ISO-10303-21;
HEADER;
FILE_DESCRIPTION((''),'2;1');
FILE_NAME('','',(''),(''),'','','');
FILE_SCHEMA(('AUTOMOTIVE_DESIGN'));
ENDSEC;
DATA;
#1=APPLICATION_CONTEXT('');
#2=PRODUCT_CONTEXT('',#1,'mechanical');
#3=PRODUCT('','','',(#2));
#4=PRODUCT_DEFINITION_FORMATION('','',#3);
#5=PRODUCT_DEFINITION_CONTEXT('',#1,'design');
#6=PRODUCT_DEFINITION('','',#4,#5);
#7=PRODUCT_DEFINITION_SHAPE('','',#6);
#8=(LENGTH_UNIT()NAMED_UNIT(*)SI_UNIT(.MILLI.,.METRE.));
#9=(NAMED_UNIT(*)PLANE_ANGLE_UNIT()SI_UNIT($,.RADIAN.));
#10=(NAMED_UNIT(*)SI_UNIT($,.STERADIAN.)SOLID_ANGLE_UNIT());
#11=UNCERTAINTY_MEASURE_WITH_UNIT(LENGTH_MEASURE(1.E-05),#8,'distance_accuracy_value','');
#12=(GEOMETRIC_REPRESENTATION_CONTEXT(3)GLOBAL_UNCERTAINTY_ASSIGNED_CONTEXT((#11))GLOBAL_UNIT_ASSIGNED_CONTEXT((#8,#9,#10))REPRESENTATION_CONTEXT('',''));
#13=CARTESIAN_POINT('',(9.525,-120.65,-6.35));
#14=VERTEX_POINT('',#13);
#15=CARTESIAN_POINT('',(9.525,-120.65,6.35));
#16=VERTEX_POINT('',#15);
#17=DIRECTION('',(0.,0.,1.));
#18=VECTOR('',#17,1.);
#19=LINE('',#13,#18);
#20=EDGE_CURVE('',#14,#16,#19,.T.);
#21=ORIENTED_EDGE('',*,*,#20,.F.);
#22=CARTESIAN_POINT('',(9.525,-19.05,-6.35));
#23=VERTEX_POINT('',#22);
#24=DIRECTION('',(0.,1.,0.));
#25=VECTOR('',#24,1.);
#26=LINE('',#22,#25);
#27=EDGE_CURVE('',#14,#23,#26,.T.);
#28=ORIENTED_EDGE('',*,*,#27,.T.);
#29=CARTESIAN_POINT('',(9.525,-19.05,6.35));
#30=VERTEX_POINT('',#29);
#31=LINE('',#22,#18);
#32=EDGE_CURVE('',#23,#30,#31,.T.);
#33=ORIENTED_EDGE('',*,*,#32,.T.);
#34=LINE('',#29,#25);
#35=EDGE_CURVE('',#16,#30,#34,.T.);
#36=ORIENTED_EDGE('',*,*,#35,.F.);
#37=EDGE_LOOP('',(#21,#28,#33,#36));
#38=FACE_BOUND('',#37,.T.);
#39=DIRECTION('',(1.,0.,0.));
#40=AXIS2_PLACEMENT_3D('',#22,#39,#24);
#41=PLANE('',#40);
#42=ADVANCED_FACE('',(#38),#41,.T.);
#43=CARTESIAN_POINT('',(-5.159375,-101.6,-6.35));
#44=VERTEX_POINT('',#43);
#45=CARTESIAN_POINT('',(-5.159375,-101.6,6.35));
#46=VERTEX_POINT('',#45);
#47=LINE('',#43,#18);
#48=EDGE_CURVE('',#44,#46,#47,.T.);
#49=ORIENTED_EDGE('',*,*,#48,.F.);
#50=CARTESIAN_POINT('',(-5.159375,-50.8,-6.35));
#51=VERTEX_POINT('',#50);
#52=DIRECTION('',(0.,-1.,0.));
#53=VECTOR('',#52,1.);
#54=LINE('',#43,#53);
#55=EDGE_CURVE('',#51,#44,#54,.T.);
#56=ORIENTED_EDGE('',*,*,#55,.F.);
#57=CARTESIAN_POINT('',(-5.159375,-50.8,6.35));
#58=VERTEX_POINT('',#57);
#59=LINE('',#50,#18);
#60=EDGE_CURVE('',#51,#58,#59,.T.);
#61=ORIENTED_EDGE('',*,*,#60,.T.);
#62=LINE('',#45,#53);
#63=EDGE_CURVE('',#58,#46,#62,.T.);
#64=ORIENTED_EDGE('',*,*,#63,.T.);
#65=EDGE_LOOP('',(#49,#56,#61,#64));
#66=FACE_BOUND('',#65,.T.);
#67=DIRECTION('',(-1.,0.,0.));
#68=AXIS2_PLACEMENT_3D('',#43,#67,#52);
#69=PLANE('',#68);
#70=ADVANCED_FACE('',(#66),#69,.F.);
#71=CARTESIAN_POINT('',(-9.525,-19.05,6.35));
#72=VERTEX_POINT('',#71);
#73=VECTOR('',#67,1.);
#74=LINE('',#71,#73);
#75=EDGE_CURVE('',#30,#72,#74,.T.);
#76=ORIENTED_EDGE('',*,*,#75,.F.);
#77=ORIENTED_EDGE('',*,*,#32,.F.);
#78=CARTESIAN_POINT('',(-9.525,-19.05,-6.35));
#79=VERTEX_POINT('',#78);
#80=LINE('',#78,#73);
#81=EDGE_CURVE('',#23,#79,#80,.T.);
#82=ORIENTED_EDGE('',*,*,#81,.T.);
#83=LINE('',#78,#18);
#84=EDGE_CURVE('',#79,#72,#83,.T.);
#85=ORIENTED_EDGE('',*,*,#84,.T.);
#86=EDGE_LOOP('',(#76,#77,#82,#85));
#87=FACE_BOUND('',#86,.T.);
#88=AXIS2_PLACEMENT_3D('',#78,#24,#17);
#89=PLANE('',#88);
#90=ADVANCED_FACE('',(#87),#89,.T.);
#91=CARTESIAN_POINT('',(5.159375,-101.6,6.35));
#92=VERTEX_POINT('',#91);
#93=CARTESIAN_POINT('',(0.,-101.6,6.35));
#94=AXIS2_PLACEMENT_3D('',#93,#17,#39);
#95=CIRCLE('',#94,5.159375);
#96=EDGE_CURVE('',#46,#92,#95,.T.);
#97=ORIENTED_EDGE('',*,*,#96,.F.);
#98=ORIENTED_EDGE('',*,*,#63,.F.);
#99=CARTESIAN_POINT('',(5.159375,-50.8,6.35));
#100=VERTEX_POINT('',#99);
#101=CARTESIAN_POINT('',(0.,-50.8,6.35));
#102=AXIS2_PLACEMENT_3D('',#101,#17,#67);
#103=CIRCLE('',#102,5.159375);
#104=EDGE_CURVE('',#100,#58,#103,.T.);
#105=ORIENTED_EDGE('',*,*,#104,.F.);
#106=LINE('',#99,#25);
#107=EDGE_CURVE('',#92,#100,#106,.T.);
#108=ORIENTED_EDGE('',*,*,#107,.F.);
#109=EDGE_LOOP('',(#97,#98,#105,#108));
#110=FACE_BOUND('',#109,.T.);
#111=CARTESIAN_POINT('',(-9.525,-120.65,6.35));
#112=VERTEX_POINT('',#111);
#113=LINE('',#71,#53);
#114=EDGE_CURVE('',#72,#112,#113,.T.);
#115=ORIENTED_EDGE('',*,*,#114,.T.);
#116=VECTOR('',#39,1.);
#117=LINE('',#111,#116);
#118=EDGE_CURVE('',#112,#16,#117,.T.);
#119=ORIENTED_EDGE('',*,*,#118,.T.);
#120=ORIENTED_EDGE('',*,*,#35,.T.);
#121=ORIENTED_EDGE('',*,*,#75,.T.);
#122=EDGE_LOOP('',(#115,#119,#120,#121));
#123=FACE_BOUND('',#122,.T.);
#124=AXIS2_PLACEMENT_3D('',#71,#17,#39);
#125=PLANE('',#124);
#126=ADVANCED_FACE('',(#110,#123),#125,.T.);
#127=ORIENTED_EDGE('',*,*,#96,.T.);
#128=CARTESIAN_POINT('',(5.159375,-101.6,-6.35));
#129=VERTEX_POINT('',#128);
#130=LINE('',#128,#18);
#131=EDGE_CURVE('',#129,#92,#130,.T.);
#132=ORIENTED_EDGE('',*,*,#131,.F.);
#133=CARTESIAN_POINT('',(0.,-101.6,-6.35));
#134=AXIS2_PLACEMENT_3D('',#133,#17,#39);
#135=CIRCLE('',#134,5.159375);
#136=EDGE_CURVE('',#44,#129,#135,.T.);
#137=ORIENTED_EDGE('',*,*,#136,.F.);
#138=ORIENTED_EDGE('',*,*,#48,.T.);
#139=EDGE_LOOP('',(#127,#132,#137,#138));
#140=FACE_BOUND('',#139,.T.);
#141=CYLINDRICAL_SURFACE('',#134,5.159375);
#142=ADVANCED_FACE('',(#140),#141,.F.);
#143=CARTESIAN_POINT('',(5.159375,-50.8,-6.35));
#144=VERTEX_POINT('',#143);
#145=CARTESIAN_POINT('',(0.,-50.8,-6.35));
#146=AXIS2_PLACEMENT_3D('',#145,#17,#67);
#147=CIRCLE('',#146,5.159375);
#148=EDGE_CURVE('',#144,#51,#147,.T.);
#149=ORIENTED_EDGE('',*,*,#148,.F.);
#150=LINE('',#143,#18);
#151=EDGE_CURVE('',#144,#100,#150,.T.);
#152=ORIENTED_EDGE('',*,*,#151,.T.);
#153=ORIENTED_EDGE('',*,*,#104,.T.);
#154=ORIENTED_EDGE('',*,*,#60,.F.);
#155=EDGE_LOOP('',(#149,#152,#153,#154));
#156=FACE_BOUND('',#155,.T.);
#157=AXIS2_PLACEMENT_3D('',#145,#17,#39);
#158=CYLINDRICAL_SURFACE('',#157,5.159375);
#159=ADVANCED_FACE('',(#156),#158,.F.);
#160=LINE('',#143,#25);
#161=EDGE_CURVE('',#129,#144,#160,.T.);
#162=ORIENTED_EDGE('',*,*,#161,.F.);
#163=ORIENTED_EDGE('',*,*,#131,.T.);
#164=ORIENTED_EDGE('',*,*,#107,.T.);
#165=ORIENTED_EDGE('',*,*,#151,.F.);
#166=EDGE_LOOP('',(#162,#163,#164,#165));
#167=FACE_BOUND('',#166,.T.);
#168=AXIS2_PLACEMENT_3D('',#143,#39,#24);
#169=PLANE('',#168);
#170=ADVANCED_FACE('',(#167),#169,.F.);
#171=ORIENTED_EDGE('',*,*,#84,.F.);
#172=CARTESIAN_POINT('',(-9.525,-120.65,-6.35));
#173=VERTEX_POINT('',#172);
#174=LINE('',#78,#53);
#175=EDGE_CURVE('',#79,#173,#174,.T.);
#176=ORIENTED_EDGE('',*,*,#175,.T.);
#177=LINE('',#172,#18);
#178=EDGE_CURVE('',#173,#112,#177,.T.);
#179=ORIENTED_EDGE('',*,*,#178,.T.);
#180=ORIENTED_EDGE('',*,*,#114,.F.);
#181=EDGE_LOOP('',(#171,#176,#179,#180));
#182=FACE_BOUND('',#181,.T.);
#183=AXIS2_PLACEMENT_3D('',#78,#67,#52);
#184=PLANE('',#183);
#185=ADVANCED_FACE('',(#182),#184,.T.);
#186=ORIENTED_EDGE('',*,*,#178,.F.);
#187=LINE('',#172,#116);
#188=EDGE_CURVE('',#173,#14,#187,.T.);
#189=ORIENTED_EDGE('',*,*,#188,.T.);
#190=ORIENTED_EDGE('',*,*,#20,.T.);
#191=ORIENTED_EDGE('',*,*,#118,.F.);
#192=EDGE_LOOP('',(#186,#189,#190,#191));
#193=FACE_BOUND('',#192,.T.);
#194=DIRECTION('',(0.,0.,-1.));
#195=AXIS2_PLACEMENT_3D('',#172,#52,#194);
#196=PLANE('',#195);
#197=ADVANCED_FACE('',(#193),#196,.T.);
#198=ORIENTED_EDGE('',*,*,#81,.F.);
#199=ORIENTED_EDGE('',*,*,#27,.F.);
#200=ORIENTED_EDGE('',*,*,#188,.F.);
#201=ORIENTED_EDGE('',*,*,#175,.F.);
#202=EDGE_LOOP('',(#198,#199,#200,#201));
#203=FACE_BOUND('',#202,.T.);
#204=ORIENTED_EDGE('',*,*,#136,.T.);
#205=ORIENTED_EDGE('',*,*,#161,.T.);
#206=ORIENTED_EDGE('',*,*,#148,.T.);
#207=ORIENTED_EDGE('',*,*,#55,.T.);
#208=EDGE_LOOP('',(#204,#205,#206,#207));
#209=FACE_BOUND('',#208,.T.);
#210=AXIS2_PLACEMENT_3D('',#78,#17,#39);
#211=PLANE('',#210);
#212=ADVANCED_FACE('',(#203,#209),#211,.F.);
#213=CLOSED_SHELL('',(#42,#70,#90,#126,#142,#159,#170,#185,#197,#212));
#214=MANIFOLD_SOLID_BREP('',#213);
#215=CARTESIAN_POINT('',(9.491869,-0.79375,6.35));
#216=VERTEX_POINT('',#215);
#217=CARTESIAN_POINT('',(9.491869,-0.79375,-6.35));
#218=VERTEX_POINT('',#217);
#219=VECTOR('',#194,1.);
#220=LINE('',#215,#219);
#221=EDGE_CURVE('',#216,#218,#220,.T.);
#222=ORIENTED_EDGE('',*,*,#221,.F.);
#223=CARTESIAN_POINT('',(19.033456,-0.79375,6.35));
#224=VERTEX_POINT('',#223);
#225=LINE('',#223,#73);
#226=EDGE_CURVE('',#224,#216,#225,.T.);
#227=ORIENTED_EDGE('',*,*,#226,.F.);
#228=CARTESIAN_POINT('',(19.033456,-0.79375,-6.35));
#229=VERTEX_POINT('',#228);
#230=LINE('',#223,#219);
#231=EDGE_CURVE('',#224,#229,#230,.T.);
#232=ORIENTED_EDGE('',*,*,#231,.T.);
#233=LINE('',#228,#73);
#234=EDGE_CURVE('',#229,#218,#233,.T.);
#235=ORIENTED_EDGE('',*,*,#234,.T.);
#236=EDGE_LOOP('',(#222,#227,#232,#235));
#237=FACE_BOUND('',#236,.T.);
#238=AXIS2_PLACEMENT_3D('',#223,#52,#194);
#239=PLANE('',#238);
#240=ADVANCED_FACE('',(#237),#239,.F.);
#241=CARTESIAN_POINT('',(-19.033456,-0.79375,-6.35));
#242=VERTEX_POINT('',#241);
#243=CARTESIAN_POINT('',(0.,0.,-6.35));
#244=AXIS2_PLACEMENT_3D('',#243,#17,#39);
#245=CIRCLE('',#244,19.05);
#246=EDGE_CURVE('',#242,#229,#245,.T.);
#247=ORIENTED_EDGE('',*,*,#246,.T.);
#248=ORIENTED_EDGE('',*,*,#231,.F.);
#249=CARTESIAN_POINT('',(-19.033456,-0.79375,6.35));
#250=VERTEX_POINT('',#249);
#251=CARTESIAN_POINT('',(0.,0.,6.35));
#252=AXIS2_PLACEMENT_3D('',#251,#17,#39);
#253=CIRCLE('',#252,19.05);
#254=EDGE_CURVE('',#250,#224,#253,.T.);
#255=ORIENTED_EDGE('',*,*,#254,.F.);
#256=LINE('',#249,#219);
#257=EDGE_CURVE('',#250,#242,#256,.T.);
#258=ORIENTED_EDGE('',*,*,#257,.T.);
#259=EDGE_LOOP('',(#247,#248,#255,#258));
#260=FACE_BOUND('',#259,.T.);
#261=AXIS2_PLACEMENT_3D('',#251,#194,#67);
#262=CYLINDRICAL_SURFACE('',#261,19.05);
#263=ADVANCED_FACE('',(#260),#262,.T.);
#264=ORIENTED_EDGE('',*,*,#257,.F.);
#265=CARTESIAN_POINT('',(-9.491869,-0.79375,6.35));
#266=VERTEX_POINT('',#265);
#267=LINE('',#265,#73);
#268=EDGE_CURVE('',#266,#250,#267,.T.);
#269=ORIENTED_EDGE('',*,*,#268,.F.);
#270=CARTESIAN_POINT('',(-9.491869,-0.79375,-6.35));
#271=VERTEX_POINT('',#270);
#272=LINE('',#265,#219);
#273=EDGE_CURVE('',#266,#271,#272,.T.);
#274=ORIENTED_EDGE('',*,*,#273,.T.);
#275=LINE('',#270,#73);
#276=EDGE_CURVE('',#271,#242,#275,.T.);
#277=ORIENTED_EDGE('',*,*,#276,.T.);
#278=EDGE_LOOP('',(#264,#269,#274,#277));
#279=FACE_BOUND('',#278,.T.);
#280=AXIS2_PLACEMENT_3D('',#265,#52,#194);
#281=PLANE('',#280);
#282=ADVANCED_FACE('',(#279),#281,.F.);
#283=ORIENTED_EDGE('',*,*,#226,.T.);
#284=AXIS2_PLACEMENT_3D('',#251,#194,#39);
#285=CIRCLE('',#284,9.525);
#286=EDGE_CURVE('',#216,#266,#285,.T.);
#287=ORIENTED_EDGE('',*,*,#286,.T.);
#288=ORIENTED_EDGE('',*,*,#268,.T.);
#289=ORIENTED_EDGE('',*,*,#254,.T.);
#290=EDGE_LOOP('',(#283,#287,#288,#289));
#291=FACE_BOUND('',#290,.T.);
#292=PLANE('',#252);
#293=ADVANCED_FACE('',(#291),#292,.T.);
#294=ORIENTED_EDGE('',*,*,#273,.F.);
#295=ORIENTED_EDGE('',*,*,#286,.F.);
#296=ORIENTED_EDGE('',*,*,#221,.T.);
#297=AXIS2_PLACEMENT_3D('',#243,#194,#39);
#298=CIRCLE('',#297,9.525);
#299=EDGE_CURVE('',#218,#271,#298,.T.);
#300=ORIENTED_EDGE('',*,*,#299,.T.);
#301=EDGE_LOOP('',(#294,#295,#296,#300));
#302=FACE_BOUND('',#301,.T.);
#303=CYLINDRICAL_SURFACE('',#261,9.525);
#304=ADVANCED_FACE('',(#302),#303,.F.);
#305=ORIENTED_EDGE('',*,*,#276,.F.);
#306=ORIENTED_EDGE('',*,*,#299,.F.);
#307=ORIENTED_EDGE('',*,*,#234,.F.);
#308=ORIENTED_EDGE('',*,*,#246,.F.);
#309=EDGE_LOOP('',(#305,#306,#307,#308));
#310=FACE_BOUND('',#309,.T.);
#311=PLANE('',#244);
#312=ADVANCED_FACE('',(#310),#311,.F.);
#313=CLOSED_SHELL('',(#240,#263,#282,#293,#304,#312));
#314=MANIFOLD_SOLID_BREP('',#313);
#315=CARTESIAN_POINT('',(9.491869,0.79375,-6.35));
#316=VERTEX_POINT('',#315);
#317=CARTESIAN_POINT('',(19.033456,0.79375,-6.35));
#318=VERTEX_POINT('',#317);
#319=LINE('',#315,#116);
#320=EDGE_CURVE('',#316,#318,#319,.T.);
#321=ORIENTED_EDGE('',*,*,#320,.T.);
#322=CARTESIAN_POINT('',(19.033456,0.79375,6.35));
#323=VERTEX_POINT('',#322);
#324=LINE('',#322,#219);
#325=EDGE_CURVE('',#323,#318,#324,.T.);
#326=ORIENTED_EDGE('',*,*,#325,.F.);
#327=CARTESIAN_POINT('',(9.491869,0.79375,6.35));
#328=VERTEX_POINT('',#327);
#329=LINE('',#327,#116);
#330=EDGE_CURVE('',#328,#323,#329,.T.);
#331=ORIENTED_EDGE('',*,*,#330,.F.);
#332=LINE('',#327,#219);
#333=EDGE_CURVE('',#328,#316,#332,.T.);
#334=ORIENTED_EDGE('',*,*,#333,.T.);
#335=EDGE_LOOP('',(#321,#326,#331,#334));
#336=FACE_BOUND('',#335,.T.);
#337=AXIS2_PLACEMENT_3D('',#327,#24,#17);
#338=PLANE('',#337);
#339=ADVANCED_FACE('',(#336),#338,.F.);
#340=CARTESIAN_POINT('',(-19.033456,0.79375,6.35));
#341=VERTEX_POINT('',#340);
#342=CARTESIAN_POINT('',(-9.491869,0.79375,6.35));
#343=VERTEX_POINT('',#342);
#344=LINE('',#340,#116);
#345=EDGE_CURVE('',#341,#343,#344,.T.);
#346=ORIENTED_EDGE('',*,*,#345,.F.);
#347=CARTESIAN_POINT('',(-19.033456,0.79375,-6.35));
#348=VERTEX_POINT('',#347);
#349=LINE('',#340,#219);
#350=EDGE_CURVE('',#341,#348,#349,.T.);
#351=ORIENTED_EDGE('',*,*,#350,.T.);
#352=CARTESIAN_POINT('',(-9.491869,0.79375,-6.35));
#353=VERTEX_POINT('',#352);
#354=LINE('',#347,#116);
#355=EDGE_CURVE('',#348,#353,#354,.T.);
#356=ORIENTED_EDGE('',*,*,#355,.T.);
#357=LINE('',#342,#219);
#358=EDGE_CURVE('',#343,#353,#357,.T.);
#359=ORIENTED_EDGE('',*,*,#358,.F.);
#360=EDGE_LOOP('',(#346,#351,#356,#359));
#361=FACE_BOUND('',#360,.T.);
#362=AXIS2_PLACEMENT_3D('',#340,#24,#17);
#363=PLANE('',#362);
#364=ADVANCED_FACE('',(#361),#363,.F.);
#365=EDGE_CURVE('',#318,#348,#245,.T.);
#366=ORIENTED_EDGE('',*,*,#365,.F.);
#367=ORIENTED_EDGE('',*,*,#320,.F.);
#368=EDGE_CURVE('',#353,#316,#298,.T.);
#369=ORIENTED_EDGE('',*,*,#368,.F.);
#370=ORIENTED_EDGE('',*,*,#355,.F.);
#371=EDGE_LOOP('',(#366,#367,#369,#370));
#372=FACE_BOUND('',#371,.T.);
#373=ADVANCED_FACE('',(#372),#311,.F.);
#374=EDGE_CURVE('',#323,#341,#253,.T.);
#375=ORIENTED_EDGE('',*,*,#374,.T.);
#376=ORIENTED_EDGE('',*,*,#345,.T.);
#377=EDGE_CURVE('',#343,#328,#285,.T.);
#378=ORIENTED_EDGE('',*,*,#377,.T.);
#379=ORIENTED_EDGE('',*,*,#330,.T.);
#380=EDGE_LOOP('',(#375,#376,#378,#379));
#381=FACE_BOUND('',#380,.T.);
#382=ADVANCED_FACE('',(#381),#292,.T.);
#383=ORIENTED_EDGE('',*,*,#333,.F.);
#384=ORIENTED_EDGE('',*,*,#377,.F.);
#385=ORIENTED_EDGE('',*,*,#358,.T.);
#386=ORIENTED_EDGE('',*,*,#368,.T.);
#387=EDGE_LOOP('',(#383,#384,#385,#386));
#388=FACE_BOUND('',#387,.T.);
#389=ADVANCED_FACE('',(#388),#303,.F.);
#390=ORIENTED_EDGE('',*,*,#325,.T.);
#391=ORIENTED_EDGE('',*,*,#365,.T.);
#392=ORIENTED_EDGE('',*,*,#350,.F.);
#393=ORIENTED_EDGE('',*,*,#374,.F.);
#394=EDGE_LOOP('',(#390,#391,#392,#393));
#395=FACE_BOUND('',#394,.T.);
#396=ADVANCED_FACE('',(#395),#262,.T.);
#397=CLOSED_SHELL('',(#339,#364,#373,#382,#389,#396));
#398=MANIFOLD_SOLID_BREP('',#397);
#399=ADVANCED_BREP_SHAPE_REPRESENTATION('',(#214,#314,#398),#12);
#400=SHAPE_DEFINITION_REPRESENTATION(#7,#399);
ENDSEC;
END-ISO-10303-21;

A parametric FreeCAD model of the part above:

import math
import FreeCAD as App
import Part
import Sketcher
Q = App.Units.Quantity


def add_polygon(sketch, points):
    """Adds a closed chain of lines whose ends are joined by coincident constraints."""
    first, n = sketch.GeometryCount, len(points)
    for a, b in zip(points, points[1:] + points[:1]):
        sketch.addGeometry(Part.LineSegment(App.Vector(*a, 0), App.Vector(*b, 0)), False)
    for i in range(n):
        sketch.addConstraint(Sketcher.Constraint("Coincident", first + i, 2, first + (i + 1) % n, 1))

doc = App.newDocument("Part")
body = doc.addObject("PartDesign::Body", "Body")

# Sketch on XY plane
sketch1 = body.newObject("Sketcher::SketchObject", "Sketch")
sketch1.AttachmentSupport = (doc.getObject("XY_Plane"), [""])
sketch1.MapMode = "FlatFace"
sketch1.addGeometry([
    Part.LineSegment(App.Vector(-19, 1, 0), App.Vector(-9, 1, 0)),
    Part.ArcOfCircle(Part.Circle(App.Vector(0, 0, 0), App.Vector(0, 0, 1), 10), math.radians(5), math.radians(175)),
    Part.LineSegment(App.Vector(9, 1, 0), App.Vector(19, 1, 0)),
    Part.ArcOfCircle(Part.Circle(App.Vector(0, 0, 0), App.Vector(0, 0, 1), 19), math.radians(2), math.radians(178)),
], False)
sketch1.addConstraint([
    Sketcher.Constraint("Coincident", 0, 2, 1, 2),
    Sketcher.Constraint("Coincident", 1, 1, 2, 1),
    Sketcher.Constraint("Coincident", 2, 2, 3, 1),
    Sketcher.Constraint("Coincident", 3, 2, 0, 1),
    Sketcher.Constraint("Horizontal", 0),
    Sketcher.Constraint("Horizontal", 2),
    Sketcher.Constraint("Coincident", 1, 3, -1, 1),
    Sketcher.Constraint("Coincident", 3, 3, -1, 1),
    Sketcher.Constraint("Horizontal", 0, 2, 1, 1),
    Sketcher.Constraint("Radius", 3, Q("0.75 in")),
    Sketcher.Constraint("Radius", 1, Q("0.375 in")),
    Sketcher.Constraint("DistanceY", -1, 1, 0, 2, Q("0.03125 in")),
])
pad1 = body.newObject("PartDesign::Pad", "Pad")
pad1.Profile = sketch1
pad1.Length = Q("0.5 in")
pad1.Midplane = True
body2 = doc.addObject("PartDesign::Body", "Body001")

# Sketch on XY plane
sketch2 = body2.newObject("Sketcher::SketchObject", "Sketch001")
sketch2.AttachmentSupport = (doc.getObject("XY_Plane001"), [""])
sketch2.MapMode = "FlatFace"
sketch2.addGeometry([
    Part.LineSegment(App.Vector(19, -1, 0), App.Vector(9, -1, 0)),
    Part.ArcOfCircle(Part.Circle(App.Vector(0, 0, 0), App.Vector(0, 0, 1), 10), math.radians(-175), math.radians(-5)),
    Part.LineSegment(App.Vector(-9, -1, 0), App.Vector(-19, -1, 0)),
    Part.ArcOfCircle(Part.Circle(App.Vector(0, 0, 0), App.Vector(0, 0, 1), 19), math.radians(-178), math.radians(-2)),
], False)
sketch2.addConstraint([
    Sketcher.Constraint("Coincident", 0, 2, 1, 2),
    Sketcher.Constraint("Coincident", 1, 1, 2, 1),
    Sketcher.Constraint("Coincident", 2, 2, 3, 1),
    Sketcher.Constraint("Coincident", 3, 2, 0, 1),
    Sketcher.Constraint("Horizontal", 0),
    Sketcher.Constraint("Horizontal", 2),
    Sketcher.Constraint("Coincident", 1, 3, -1, 1),
    Sketcher.Constraint("Coincident", 3, 3, -1, 1),
    Sketcher.Constraint("Horizontal", 0, 2, 1, 1),
    Sketcher.Constraint("Radius", 3, Q("0.75 in")),
    Sketcher.Constraint("Radius", 1, Q("0.375 in")),
    Sketcher.Constraint("DistanceY", 0, 2, -1, 1, Q("0.03125 in")),
])
pad2 = body2.newObject("PartDesign::Pad", "Pad001")
pad2.Profile = sketch2
pad2.Length = Q("0.5 in")
pad2.Midplane = True
body3 = doc.addObject("PartDesign::Body", "Body002")

# Sketch on XY plane
sketch3 = body3.newObject("Sketcher::SketchObject", "Sketch002")
sketch3.AttachmentSupport = (doc.getObject("XY_Plane002"), [""])
sketch3.MapMode = "FlatFace"
sketch3.AttachmentOffset = App.Placement(App.Vector(0, 0, 0.25 * 25.4), App.Rotation())
add_polygon(sketch3, [(-10, -19), (-10, -121), (10, -121), (10, -19)])  # lines 0-3
sketch3.addConstraint([
    Sketcher.Constraint("Vertical", 0),
    Sketcher.Constraint("Horizontal", 1),
    Sketcher.Constraint("Vertical", 2),
    Sketcher.Constraint("Horizontal", 3),
    Sketcher.Constraint("DistanceY", 0, 2, 0, 1, Q("4 in")),
    Sketcher.Constraint("DistanceX", 1, 1, 1, 2, Q("0.75 in")),
    Sketcher.Constraint("DistanceY", 0, 2, -1, 1, Q("4.75 in")),
    Sketcher.Constraint("DistanceX", 0, 2, -1, 1, Q("0.375 in")),
])
pad3 = body3.newObject("PartDesign::Pad", "Pad002")
pad3.Profile = sketch3
pad3.Length = Q("0.5 in")
pad3.Reversed = True

# Sketch on XY plane
sketch4 = body3.newObject("Sketcher::SketchObject", "Sketch003")
sketch4.AttachmentSupport = (doc.getObject("XY_Plane002"), [""])
sketch4.MapMode = "FlatFace"
sketch4.AttachmentOffset = App.Placement(App.Vector(0, 0, 0.25 * 25.4), App.Rotation())
sketch4.addGeometry([
    Part.LineSegment(App.Vector(-5, -51, 0), App.Vector(-5, -102, 0)),
    Part.ArcOfCircle(Part.Circle(App.Vector(0, -102, 0), App.Vector(0, 0, 1), 5), math.radians(180), math.radians(360)),
    Part.LineSegment(App.Vector(5, -102, 0), App.Vector(5, -51, 0)),
    Part.ArcOfCircle(Part.Circle(App.Vector(0, -51, 0), App.Vector(0, 0, 1), 5), math.radians(0), math.radians(180)),
], False)
sketch4.addConstraint([
    Sketcher.Constraint("Tangent", 0, 2, 1, 1),
    Sketcher.Constraint("Tangent", 1, 2, 2, 1),
    Sketcher.Constraint("Tangent", 2, 2, 3, 1),
    Sketcher.Constraint("Tangent", 3, 2, 0, 1),
    Sketcher.Constraint("Vertical", 0),
    Sketcher.Constraint("Vertical", 2),
    Sketcher.Constraint("PointOnObject", 1, 3, -2),
    Sketcher.Constraint("DistanceY", 0, 2, 0, 1, Q("2 in")),
    Sketcher.Constraint("DistanceY", 1, 3, -1, 1, Q("4 in")),
    Sketcher.Constraint("Radius", 1, Q("0.203125 in")),
])
pocket1 = body3.newObject("PartDesign::Pocket", "Pocket")
pocket1.Profile = sketch4
pocket1.Type = "ThroughAll"

doc.recompute()
